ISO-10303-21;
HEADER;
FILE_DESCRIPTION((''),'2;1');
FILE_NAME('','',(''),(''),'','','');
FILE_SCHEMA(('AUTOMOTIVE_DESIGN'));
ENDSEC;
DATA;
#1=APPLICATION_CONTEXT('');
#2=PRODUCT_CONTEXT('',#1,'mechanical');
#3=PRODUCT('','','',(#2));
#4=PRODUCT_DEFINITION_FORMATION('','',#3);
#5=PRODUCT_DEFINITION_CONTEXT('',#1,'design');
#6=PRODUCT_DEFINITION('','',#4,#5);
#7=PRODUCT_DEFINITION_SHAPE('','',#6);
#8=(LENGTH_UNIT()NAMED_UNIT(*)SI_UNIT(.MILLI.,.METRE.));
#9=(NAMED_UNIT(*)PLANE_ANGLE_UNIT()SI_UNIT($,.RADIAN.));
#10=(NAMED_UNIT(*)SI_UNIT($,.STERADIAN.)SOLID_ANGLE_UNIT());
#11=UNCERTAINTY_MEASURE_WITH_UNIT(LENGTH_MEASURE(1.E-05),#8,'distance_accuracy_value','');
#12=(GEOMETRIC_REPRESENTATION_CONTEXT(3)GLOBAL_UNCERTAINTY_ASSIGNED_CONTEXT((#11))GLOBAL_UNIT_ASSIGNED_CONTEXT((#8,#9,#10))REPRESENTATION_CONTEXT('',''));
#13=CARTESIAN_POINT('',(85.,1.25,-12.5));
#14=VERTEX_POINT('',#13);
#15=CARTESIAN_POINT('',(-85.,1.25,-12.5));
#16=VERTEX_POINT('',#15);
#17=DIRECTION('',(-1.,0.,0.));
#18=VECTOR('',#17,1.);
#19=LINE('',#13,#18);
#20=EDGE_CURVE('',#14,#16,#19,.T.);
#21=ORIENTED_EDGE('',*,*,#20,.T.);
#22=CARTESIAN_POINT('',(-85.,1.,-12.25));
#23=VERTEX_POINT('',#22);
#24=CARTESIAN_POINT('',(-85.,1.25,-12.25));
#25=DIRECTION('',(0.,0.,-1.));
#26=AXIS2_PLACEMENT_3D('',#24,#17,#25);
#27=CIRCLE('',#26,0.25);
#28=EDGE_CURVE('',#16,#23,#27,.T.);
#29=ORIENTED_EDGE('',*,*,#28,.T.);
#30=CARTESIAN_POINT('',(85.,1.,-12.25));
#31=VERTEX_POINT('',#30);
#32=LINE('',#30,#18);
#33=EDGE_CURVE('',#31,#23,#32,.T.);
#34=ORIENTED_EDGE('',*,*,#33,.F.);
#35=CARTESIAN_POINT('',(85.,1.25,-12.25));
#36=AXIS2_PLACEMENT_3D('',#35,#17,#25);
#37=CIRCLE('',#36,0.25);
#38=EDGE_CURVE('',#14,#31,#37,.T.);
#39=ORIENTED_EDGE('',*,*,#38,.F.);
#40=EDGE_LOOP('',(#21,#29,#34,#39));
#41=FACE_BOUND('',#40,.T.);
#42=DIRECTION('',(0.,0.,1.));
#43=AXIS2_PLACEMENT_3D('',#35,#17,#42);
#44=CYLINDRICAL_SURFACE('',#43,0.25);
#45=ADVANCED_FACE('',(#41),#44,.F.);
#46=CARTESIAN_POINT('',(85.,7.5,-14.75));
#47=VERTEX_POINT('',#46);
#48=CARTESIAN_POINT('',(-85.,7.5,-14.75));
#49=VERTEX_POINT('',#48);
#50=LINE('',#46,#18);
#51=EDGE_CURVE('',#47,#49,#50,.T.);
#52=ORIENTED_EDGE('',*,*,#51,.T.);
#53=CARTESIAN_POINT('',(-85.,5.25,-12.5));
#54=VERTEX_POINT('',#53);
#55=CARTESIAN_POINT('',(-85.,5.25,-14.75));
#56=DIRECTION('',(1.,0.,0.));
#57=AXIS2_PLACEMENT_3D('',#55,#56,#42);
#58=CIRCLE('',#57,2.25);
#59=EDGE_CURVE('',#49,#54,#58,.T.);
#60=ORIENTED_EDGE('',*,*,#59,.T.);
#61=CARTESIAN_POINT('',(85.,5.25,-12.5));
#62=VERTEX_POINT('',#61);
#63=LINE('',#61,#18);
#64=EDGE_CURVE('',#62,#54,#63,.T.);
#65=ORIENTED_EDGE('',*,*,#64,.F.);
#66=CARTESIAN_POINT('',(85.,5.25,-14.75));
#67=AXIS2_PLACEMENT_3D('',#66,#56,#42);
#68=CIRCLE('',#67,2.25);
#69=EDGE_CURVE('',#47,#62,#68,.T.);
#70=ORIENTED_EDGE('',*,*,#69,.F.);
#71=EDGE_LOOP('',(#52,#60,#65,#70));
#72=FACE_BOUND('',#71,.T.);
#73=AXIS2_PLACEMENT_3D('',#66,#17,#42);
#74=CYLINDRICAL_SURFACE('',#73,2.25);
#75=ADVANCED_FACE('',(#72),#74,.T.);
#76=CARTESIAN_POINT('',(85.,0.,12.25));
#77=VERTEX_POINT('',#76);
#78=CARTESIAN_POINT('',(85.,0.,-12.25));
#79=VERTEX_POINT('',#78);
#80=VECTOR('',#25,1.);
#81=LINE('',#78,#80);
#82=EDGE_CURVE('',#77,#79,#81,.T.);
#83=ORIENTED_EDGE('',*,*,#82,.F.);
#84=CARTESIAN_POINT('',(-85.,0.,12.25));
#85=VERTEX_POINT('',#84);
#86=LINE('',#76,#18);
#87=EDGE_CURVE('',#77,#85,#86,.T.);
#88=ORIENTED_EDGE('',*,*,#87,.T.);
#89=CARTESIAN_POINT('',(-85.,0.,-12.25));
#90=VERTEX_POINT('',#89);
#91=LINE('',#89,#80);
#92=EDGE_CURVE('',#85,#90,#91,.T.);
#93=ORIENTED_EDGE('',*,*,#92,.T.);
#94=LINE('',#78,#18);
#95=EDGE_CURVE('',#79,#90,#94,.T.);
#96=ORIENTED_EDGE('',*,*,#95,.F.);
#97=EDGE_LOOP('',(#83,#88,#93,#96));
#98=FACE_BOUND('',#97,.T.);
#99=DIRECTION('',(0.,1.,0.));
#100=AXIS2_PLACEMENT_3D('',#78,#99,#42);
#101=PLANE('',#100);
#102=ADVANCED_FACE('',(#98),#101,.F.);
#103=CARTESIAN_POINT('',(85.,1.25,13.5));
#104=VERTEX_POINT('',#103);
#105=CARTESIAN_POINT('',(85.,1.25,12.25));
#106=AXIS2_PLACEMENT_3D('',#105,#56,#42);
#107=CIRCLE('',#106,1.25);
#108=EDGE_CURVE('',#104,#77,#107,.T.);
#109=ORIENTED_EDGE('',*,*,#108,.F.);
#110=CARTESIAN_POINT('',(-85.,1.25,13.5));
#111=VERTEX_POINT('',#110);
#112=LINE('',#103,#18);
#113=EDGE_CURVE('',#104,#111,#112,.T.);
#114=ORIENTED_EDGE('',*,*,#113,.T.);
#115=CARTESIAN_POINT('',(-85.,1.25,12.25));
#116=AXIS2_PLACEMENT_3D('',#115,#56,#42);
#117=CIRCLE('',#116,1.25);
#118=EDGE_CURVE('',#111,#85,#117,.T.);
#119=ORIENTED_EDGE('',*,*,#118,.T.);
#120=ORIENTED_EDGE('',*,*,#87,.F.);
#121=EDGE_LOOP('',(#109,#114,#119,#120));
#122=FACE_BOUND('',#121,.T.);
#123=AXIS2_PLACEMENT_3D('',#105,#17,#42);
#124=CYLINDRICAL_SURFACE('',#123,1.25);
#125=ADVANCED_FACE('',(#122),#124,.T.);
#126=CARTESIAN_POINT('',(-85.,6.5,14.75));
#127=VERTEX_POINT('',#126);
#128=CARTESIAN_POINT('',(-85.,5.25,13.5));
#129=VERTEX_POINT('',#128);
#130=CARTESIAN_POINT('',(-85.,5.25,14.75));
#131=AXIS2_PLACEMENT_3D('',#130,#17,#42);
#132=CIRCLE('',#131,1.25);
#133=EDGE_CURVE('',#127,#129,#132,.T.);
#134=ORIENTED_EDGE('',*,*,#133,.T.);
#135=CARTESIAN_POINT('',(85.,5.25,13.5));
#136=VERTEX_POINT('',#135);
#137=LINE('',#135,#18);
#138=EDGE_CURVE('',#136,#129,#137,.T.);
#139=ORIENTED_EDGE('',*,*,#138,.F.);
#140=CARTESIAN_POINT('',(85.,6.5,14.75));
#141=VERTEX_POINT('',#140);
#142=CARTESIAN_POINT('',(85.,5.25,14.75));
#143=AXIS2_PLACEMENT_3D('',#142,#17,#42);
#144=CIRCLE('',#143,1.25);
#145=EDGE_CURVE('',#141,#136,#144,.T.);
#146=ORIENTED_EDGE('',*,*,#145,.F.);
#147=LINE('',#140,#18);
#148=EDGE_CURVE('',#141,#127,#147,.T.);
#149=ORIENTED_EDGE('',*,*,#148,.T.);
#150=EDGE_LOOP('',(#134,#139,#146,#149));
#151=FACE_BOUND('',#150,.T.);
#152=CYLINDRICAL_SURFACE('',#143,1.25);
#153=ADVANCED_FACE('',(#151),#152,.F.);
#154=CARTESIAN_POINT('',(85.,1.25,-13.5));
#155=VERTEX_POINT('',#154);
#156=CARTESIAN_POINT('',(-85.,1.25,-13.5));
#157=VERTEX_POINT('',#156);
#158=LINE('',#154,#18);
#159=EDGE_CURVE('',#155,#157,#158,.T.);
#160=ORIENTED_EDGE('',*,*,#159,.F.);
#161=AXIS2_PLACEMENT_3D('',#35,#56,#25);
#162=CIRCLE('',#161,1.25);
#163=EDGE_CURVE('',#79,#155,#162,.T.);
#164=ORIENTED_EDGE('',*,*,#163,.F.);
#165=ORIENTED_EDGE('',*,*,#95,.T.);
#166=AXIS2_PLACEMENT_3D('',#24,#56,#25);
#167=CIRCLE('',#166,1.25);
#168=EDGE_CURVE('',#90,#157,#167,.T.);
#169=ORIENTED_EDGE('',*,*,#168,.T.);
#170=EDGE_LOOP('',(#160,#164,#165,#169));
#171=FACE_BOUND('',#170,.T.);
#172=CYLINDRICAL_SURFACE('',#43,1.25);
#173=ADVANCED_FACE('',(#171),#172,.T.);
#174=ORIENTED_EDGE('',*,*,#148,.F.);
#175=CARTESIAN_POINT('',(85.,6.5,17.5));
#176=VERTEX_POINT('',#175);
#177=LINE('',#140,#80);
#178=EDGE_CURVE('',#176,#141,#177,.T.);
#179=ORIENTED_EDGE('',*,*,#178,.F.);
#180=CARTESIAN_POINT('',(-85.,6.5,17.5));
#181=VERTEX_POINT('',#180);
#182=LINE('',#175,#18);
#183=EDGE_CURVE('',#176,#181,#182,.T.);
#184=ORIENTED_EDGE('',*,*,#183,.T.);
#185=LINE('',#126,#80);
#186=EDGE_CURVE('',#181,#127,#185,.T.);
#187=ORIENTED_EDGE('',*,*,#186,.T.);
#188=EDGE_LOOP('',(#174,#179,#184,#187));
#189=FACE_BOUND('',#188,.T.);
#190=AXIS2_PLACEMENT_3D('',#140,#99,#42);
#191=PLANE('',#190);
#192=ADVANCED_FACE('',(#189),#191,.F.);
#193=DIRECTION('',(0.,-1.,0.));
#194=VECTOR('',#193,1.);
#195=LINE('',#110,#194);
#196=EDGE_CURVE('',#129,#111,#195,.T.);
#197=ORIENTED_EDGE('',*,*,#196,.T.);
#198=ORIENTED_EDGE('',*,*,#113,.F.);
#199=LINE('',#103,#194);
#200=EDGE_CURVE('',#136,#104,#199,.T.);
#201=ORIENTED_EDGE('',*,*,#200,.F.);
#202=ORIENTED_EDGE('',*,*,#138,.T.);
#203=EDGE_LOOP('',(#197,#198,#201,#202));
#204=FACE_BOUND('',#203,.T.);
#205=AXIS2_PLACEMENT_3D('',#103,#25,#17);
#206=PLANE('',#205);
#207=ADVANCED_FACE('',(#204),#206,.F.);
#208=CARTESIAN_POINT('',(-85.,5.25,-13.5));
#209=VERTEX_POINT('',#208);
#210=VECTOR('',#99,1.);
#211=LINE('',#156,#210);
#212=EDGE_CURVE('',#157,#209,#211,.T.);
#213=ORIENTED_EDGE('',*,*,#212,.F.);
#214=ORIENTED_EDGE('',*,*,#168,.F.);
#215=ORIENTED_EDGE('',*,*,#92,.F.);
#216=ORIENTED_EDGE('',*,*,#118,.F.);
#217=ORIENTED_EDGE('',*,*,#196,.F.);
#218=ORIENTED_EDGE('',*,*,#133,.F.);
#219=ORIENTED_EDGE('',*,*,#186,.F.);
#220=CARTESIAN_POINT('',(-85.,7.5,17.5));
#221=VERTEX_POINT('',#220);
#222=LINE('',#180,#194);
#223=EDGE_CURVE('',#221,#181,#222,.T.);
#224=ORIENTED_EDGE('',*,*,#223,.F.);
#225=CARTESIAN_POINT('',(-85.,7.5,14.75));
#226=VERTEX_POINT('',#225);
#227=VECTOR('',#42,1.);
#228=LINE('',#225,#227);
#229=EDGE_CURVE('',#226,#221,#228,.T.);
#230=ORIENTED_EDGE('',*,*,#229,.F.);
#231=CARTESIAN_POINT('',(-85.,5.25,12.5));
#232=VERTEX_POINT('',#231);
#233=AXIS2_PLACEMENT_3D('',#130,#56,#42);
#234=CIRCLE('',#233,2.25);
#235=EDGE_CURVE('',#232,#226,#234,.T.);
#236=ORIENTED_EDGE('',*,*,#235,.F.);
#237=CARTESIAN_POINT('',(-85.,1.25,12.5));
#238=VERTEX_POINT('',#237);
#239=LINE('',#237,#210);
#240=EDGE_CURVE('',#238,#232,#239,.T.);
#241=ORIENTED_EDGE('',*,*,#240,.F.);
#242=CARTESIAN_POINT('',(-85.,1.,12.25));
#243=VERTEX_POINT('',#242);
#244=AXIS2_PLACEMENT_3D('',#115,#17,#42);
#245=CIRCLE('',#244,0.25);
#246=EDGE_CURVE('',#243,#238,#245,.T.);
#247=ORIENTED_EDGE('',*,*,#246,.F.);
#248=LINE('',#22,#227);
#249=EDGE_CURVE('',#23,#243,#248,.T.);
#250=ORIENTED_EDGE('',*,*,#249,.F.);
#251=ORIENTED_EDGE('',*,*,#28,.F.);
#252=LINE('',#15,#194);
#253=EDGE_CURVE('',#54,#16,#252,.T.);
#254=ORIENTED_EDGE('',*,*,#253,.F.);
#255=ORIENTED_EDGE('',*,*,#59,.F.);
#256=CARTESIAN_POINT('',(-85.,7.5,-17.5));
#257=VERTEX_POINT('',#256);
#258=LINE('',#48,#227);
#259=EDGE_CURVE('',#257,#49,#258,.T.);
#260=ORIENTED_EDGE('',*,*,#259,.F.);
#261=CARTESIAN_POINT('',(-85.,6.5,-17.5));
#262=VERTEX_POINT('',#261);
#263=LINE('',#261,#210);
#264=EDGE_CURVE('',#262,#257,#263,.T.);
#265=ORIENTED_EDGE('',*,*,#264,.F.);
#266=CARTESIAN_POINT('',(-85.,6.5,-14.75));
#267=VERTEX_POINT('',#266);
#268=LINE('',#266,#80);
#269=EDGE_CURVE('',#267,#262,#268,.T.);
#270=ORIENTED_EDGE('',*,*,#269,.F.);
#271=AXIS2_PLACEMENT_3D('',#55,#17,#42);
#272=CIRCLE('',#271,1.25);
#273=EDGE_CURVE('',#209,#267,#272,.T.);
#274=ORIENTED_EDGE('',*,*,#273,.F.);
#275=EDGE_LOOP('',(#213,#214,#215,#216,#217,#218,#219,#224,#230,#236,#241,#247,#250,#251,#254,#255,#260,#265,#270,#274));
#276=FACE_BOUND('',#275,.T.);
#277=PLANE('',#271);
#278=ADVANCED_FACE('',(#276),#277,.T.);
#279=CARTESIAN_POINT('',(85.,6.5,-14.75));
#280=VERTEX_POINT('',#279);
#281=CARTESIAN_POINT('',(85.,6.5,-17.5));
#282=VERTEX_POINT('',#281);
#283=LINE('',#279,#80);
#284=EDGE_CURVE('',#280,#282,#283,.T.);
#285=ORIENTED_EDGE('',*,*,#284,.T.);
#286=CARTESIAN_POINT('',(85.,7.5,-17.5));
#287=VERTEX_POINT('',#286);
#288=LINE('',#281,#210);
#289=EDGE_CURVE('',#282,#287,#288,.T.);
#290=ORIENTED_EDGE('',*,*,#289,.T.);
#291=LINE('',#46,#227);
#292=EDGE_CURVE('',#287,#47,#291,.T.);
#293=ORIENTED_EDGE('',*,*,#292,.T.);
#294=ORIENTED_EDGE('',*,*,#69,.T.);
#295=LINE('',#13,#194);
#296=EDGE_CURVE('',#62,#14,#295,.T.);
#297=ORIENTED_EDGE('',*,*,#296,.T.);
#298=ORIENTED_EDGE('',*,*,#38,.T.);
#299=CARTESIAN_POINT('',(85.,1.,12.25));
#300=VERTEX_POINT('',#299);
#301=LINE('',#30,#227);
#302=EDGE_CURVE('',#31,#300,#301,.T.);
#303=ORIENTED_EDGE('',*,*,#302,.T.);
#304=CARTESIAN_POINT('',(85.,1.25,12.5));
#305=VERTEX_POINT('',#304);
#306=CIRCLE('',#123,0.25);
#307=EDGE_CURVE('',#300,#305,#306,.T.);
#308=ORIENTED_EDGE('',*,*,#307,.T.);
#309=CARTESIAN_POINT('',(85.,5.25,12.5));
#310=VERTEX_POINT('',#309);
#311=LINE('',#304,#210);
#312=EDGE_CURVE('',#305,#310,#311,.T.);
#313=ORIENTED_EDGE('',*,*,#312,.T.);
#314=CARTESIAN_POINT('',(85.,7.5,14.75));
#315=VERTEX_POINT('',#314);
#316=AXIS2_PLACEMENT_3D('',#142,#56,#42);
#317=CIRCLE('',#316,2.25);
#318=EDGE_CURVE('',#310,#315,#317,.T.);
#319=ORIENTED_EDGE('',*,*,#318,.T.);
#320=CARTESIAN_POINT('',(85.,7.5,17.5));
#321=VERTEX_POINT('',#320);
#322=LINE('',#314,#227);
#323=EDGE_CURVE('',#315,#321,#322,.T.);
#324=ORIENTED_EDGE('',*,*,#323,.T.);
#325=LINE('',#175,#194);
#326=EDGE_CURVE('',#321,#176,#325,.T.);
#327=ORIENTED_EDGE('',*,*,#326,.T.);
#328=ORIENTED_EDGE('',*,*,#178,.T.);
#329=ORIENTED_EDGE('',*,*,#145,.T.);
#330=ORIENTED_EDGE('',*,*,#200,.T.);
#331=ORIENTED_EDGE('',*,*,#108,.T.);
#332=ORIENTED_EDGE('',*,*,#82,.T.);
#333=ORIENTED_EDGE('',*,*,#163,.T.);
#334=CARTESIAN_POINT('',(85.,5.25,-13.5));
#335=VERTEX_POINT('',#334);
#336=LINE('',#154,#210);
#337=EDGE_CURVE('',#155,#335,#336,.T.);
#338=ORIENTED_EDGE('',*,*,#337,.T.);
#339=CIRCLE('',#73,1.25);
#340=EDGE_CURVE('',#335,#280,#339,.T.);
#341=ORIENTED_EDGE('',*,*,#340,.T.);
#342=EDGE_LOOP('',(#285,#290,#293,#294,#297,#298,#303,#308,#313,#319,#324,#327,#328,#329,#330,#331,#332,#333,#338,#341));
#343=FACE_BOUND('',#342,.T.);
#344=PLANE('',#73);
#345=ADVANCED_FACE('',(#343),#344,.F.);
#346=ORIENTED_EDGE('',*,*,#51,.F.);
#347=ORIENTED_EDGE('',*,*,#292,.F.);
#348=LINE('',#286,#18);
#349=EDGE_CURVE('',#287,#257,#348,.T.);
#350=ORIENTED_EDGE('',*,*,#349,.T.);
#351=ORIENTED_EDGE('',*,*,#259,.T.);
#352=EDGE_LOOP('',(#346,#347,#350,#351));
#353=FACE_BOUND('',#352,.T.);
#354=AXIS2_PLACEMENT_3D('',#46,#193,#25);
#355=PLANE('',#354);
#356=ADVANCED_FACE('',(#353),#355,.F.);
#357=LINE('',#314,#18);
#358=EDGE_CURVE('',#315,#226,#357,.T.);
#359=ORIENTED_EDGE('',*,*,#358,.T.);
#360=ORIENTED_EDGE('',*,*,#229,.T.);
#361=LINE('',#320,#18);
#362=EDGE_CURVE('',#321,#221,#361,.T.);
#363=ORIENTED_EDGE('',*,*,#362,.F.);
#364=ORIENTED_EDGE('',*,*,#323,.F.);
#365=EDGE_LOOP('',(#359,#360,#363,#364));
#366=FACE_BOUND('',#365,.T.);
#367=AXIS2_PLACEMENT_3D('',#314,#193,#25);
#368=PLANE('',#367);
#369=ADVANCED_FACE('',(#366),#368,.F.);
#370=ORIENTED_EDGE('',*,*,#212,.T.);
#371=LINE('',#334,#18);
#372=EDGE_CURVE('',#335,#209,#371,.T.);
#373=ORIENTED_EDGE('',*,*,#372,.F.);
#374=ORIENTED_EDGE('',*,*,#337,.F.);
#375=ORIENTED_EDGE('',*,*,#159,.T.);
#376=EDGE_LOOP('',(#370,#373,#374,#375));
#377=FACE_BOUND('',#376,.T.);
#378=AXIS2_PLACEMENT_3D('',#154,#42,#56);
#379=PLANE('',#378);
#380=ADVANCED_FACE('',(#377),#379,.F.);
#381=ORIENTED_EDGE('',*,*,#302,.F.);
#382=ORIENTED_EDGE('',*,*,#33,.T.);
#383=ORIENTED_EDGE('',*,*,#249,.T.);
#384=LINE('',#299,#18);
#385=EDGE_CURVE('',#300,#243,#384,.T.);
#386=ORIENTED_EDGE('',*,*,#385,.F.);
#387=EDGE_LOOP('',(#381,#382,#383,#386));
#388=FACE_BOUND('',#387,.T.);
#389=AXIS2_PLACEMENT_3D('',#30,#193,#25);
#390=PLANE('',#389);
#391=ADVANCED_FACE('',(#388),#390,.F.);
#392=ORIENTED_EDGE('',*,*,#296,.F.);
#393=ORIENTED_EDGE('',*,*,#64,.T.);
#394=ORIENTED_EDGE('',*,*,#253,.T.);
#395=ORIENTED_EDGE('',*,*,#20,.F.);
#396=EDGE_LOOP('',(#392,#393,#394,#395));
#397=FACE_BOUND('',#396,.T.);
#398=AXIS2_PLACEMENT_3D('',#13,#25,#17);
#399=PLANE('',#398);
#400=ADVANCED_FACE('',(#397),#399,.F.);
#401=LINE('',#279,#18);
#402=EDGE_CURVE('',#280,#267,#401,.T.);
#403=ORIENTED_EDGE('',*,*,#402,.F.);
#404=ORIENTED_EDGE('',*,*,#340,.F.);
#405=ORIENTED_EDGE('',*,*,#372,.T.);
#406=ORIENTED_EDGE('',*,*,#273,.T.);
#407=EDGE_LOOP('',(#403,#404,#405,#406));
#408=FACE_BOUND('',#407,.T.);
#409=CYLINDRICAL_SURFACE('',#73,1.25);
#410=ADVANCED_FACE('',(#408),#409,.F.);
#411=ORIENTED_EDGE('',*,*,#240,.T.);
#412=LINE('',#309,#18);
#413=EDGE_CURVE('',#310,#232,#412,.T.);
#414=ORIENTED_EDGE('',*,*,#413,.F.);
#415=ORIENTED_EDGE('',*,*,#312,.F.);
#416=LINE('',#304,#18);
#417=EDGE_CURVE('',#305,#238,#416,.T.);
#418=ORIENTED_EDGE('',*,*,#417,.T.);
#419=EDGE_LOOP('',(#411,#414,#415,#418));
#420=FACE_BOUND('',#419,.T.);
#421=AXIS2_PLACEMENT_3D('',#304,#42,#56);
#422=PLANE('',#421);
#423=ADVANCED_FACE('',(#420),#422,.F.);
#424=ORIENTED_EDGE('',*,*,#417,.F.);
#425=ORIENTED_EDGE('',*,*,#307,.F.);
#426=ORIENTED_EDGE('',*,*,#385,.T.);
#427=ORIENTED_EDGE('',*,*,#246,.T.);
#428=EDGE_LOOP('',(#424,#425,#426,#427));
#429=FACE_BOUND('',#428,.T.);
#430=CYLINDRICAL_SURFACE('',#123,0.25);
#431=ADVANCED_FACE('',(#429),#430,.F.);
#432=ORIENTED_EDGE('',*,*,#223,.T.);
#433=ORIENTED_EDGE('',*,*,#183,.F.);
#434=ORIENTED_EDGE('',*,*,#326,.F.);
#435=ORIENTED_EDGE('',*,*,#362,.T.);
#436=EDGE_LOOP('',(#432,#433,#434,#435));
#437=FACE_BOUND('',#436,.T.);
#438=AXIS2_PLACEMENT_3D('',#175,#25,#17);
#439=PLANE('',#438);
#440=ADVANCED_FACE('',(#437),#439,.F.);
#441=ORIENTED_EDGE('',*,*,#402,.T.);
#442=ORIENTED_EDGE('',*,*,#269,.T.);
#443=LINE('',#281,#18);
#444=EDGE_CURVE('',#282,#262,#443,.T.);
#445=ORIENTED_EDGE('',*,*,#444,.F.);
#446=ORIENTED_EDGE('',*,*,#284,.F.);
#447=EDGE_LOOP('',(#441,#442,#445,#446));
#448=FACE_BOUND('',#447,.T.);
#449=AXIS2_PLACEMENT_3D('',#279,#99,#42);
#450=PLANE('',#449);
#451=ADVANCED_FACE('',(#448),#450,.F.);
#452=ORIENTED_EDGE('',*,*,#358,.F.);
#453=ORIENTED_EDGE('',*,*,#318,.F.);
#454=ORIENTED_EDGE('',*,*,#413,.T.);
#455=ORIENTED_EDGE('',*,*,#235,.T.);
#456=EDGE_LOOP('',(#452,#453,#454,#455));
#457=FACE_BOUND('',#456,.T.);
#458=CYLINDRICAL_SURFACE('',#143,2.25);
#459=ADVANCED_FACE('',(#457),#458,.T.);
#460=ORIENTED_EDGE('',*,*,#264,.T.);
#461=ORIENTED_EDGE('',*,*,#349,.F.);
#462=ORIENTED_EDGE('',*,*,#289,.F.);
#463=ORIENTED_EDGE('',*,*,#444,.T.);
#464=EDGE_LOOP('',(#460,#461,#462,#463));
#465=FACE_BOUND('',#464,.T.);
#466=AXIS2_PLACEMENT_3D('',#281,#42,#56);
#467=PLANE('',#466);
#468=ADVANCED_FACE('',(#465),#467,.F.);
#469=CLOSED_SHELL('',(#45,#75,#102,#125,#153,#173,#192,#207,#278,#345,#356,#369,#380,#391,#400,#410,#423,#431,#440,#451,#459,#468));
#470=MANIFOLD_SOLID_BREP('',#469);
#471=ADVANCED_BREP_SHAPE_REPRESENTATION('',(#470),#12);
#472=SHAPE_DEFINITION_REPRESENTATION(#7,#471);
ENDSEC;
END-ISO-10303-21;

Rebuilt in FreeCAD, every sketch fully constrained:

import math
import FreeCAD as App
import Part
import Sketcher
Q = App.Units.Quantity

doc = App.newDocument("Part")
body = doc.addObject("PartDesign::Body", "Body")

# Sketch on YZ plane
sketch1 = body.newObject("Sketcher::SketchObject", "Sketch")
sketch1.AttachmentSupport = (doc.getObject("YZ_Plane"), [""])
sketch1.MapMode = "FlatFace"
sketch1.AttachmentOffset = App.Placement(App.Vector(0, 0, -85), App.Rotation())
sketch1.addGeometry([
    Part.LineSegment(App.Vector(0, 12.25, 0), App.Vector(0, -12.25, 0)),  # 0
    Part.ArcOfCircle(Part.Circle(App.Vector(1.25, -12.25, 0), App.Vector(0, 0, 1), 1.25), math.radians(-180), math.radians(-90)),  # 1
    Part.LineSegment(App.Vector(1.25, -13.5, 0), App.Vector(5.25, -13.5, 0)),  # 2
    Part.ArcOfCircle(Part.Circle(App.Vector(5.25, -14.75, 0), App.Vector(0, 0, 1), 1.25), math.radians(0), math.radians(90)),  # 3
    Part.LineSegment(App.Vector(6.5, -14.75, 0), App.Vector(6.5, -17.5, 0)),  # 4
    Part.LineSegment(App.Vector(6.5, -17.5, 0), App.Vector(7.5, -17.5, 0)),  # 5
    Part.LineSegment(App.Vector(7.5, -17.5, 0), App.Vector(7.5, -14.75, 0)),  # 6
    Part.ArcOfCircle(Part.Circle(App.Vector(5.25, -14.75, 0), App.Vector(0, 0, 1), 2.25), math.radians(0), math.radians(90)),  # 7
    Part.LineSegment(App.Vector(5.25, -12.5, 0), App.Vector(1.25, -12.5, 0)),  # 8
    Part.ArcOfCircle(Part.Circle(App.Vector(1.25, -12.25, 0), App.Vector(0, 0, 1), 0.25), math.radians(-180), math.radians(-90)),  # 9
    Part.LineSegment(App.Vector(1, -12.25, 0), App.Vector(1, 12.25, 0)),  # 10
    Part.ArcOfCircle(Part.Circle(App.Vector(1.25, 12.25, 0), App.Vector(0, 0, 1), 0.25), math.radians(90), math.radians(180)),  # 11
    Part.LineSegment(App.Vector(1.25, 12.5, 0), App.Vector(5.25, 12.5, 0)),  # 12
    Part.ArcOfCircle(Part.Circle(App.Vector(5.25, 14.75, 0), App.Vector(0, 0, 1), 2.25), math.radians(-90), math.radians(0)),  # 13
    Part.LineSegment(App.Vector(7.5, 14.75, 0), App.Vector(7.5, 17.5, 0)),  # 14
    Part.LineSegment(App.Vector(7.5, 17.5, 0), App.Vector(6.5, 17.5, 0)),  # 15
    Part.LineSegment(App.Vector(6.5, 17.5, 0), App.Vector(6.5, 14.75, 0)),  # 16
    Part.ArcOfCircle(Part.Circle(App.Vector(5.25, 14.75, 0), App.Vector(0, 0, 1), 1.25), math.radians(-90), math.radians(0)),  # 17
    Part.LineSegment(App.Vector(5.25, 13.5, 0), App.Vector(1.25, 13.5, 0)),  # 18
    Part.ArcOfCircle(Part.Circle(App.Vector(1.25, 12.25, 0), App.Vector(0, 0, 1), 1.25), math.radians(90), math.radians(180)),  # 19
], False)
sketch1.addConstraint([
    Sketcher.Constraint("Tangent", 0, 2, 1, 1),
    Sketcher.Constraint("Tangent", 1, 2, 2, 1),
    Sketcher.Constraint("Tangent", 2, 2, 3, 2),
    Sketcher.Constraint("Tangent", 3, 1, 4, 1),
    Sketcher.Constraint("Coincident", 4, 2, 5, 1),
    Sketcher.Constraint("Coincident", 5, 2, 6, 1),
    Sketcher.Constraint("Tangent", 6, 2, 7, 1),
    Sketcher.Constraint("Tangent", 7, 2, 8, 1),
    Sketcher.Constraint("Tangent", 8, 2, 9, 2),
    Sketcher.Constraint("Tangent", 9, 1, 10, 1),
    Sketcher.Constraint("Tangent", 10, 2, 11, 2),
    Sketcher.Constraint("Tangent", 11, 1, 12, 1),
    Sketcher.Constraint("Tangent", 12, 2, 13, 1),
    Sketcher.Constraint("Tangent", 13, 2, 14, 1),
    Sketcher.Constraint("Coincident", 14, 2, 15, 1),
    Sketcher.Constraint("Coincident", 15, 2, 16, 1),
    Sketcher.Constraint("Tangent", 16, 2, 17, 2),
    Sketcher.Constraint("Tangent", 17, 1, 18, 1),
    Sketcher.Constraint("Tangent", 18, 2, 19, 1),
    Sketcher.Constraint("Tangent", 19, 2, 0, 1),
    Sketcher.Constraint("Vertical", 0),
    Sketcher.Constraint("Horizontal", 2),
    Sketcher.Constraint("Vertical", 4),
    Sketcher.Constraint("Horizontal", 5),
    Sketcher.Constraint("Vertical", 6),
    Sketcher.Constraint("Horizontal", 8),
    Sketcher.Constraint("Vertical", 10),
    Sketcher.Constraint("Horizontal", 12),
    Sketcher.Constraint("Vertical", 14),
    Sketcher.Constraint("Horizontal", 15),
    Sketcher.Constraint("Vertical", 16),
    Sketcher.Constraint("Horizontal", 18),
    Sketcher.Constraint("Coincident", 7, 3, 3, 3),
    Sketcher.Constraint("Coincident", 9, 3, 1, 3),
    Sketcher.Constraint("Coincident", 17, 3, 13, 3),
    Sketcher.Constraint("Coincident", 19, 3, 11, 3),
    Sketcher.Constraint("Equal", 1, 3),
    Sketcher.Constraint("Equal", 9, 11),
    Sketcher.Constraint("Equal", 7, 13),
    Sketcher.Constraint("Symmetric", 0, 2, 19, 2, -1, 1),
    Sketcher.Constraint("Symmetric", 5, 2, 14, 2, -1),
    Sketcher.Constraint("DistanceX", 2, 1, 2, 2, Q("4 mm")),
    Sketcher.Constraint("DistanceX", 5, 1, 5, 2, Q("1 mm")),
    Sketcher.Constraint("Radius", 1, Q("1.25 mm")),
    Sketcher.Constraint("DistanceY", 0, 2, 0, 1, Q("24.5 mm")),
    Sketcher.Constraint("DistanceY", 4, 2, 2, 2, Q("4 mm")),
])
pad1 = body.newObject("PartDesign::Pad", "Pad")
pad1.Profile = sketch1
pad1.Length = 170

doc.recompute()
